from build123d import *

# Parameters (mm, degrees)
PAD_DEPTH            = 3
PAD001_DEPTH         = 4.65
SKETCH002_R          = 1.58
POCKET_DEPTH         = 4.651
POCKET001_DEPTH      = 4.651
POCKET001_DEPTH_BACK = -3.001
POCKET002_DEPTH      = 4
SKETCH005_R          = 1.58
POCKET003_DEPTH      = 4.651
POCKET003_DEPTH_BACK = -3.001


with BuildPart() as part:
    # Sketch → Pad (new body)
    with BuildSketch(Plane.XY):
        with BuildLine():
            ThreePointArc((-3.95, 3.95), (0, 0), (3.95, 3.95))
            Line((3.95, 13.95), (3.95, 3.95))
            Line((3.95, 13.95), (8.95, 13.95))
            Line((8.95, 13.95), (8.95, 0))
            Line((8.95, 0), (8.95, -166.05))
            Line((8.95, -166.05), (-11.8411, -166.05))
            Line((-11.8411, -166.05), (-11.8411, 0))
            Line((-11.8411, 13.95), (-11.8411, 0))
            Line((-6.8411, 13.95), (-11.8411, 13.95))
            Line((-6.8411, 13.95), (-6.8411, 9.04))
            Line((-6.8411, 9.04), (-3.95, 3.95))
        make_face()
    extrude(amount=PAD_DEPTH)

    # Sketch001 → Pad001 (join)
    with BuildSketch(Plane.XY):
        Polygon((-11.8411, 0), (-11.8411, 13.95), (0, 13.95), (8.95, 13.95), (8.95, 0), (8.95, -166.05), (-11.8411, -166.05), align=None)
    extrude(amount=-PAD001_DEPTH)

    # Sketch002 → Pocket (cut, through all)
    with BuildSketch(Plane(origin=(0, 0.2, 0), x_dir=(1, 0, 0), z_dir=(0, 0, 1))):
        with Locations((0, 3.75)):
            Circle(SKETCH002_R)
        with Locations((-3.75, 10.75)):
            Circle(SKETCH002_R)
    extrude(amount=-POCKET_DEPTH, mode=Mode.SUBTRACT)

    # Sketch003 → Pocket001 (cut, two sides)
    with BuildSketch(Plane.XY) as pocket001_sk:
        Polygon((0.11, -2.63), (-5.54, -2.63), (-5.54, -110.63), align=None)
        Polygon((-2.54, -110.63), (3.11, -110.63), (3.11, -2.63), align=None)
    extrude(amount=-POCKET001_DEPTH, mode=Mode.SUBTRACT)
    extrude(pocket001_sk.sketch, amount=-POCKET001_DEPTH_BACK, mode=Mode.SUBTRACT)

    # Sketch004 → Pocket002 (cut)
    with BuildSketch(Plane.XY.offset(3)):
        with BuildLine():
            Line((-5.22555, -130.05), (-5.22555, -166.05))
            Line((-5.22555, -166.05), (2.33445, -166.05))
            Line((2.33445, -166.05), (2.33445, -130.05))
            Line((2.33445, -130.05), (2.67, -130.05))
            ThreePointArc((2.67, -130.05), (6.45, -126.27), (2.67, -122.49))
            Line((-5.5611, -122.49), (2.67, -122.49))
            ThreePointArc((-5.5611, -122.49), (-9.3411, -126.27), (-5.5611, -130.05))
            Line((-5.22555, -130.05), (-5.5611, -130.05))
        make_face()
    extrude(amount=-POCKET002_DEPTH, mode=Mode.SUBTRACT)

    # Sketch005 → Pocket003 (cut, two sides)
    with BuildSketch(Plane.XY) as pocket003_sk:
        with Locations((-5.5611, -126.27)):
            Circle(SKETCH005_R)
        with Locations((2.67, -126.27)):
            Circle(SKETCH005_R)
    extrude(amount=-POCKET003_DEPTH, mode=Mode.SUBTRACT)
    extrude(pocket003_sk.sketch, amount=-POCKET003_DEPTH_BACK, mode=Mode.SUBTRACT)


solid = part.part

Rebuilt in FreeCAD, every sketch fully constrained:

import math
import FreeCAD as App
import Part
import Sketcher


def add_polygon(sketch, points):
    """Adds a closed chain of lines whose ends are joined by coincident constraints."""
    first, n = sketch.GeometryCount, len(points)
    for a, b in zip(points, points[1:] + points[:1]):
        sketch.addGeometry(Part.LineSegment(App.Vector(*a, 0), App.Vector(*b, 0)), False)
    for i in range(n):
        sketch.addConstraint(Sketcher.Constraint("Coincident", first + i, 2, first + (i + 1) % n, 1))

doc = App.newDocument("Part")
params = doc.addObject("Spreadsheet::Sheet", "Params")
for row, (alias, value) in enumerate([
    ("sketch1_width", "5 mm"),
    ("sketch1_height", "180 mm"),
    ("sketch1_height2", "10 mm"),
    ("sketch1_radius", "3.95 mm"),
    ("sketch1_height3", "4.91 mm"),
    ("pad1_length", "3 mm"),
    ("sketch2_height", "180 mm"),
    ("pad2_length", "4.65 mm"),
    ("sketch3_diameter", "3.16 mm"),
    ("sketch4_height", "108 mm"),
    ("sketch4_width", "5.65 mm"),
    ("sketch5_height", "36 mm"),
    ("sketch5_radius", "3.78 mm"),
    ("sketch5_width", "7.56 mm"),
    ("pocket3_length", "4 mm"),
    ("sketch6_diameter", "3.16 mm"),
], start=1):
    params.set(f"A{row}", alias)
    params.set(f"B{row}", "=" + value)
    params.setAlias(f"B{row}", alias)

body = doc.addObject("PartDesign::Body", "Body")

# Sketch on XY plane
sketch1 = body.newObject("Sketcher::SketchObject", "Sketch")
sketch1.AttachmentSupport = (doc.getObject("XY_Plane"), [""])
sketch1.MapMode = "FlatFace"
sketch1.addGeometry(Part.ArcOfCircle(Part.Circle(App.Vector(0, 4, 0), App.Vector(0, 0, 1), 4), math.radians(180), math.radians(360)), False)
sketch1.addGeometry(Part.LineSegment(App.Vector(-4, 4, 0), App.Vector(-6.8, 9, 0)), False)
sketch1.addGeometry(Part.LineSegment(App.Vector(-6.8, 9, 0), App.Vector(-6.8, 13.9, 0)), False)
sketch1.addGeometry(Part.LineSegment(App.Vector(-6.8, 13.9, 0), App.Vector(-11.8, 13.9, 0)), False)
sketch1.addGeometry(Part.LineSegment(App.Vector(-11.8, 13.9, 0), App.Vector(-11.8, -166.1, 0)), False)
sketch1.addGeometry(Part.LineSegment(App.Vector(-11.8, -166.1, 0), App.Vector(8.9, -166.1, 0)), False)
sketch1.addGeometry(Part.LineSegment(App.Vector(8.9, -166.1, 0), App.Vector(8.9, 13.9, 0)), False)
sketch1.addGeometry(Part.LineSegment(App.Vector(8.9, 13.9, 0), App.Vector(4, 13.9, 0)), False)
sketch1.addGeometry(Part.LineSegment(App.Vector(4, 13.9, 0), App.Vector(4, 4, 0)), False)
sketch1.addConstraint(Sketcher.Constraint("Coincident", 0, 1, 1, 1))
sketch1.addConstraint(Sketcher.Constraint("Coincident", 1, 2, 2, 1))
sketch1.addConstraint(Sketcher.Constraint("Coincident", 2, 2, 3, 1))
sketch1.addConstraint(Sketcher.Constraint("Coincident", 3, 2, 4, 1))
sketch1.addConstraint(Sketcher.Constraint("Coincident", 4, 2, 5, 1))
sketch1.addConstraint(Sketcher.Constraint("Coincident", 5, 2, 6, 1))
sketch1.addConstraint(Sketcher.Constraint("Coincident", 6, 2, 7, 1))
sketch1.addConstraint(Sketcher.Constraint("Coincident", 7, 2, 8, 1))
sketch1.addConstraint(Sketcher.Constraint("Tangent", 8, 2, 0, 2))
sketch1.addConstraint(Sketcher.Constraint("Vertical", 2))
sketch1.addConstraint(Sketcher.Constraint("Horizontal", 3))
sketch1.addConstraint(Sketcher.Constraint("Vertical", 4))
sketch1.addConstraint(Sketcher.Constraint("Horizontal", 5))
sketch1.addConstraint(Sketcher.Constraint("Vertical", 6))
sketch1.addConstraint(Sketcher.Constraint("Horizontal", 7))
sketch1.addConstraint(Sketcher.Constraint("Vertical", 8))
sketch1.addConstraint(Sketcher.Constraint("Symmetric", 0, 1, 8, 2, -2))
sketch1.addConstraint(Sketcher.Constraint("Horizontal", 3, 2, 6, 2))
sketch1.addConstraint(Sketcher.Constraint("Equal", 3, 7))
sketch1.addConstraint(Sketcher.Constraint("DistanceX", 3, 2, 3, 1, 5.0))
sketch1.addConstraint(Sketcher.Constraint("DistanceY", 4, 2, 4, 1, 180.0))
sketch1.addConstraint(Sketcher.Constraint("DistanceY", 8, 2, 8, 1, 10.0))
sketch1.addConstraint(Sketcher.Constraint("Radius", 0, 3.95))
sketch1.addConstraint(Sketcher.Constraint("DistanceY", 2, 1, 2, 2, 4.91))
sketch1.addConstraint(Sketcher.Constraint("DistanceY", -1, 1, 0, 3, 3.95))
sketch1.addConstraint(Sketcher.Constraint("DistanceX", 5, 1, 5, 2, 20.7911))
sketch1.setExpression("Constraints[19]", "Params.sketch1_width")
sketch1.setExpression("Constraints[20]", "Params.sketch1_height")
sketch1.setExpression("Constraints[21]", "Params.sketch1_height2")
sketch1.setExpression("Constraints[22]", "Params.sketch1_radius")
sketch1.setExpression("Constraints[23]", "Params.sketch1_height3")
pad1 = body.newObject("PartDesign::Pad", "Pad")
pad1.Profile = sketch1
pad1.setExpression("Length", "Params.pad1_length")

# Sketch on XY plane
sketch2 = body.newObject("Sketcher::SketchObject", "Sketch001")
sketch2.AttachmentSupport = (doc.getObject("XY_Plane"), [""])
sketch2.MapMode = "FlatFace"
add_polygon(sketch2, [(-12, 14), (-12, -166), (9, -166), (9, 14)])  # lines 0-3
sketch2.addConstraint(Sketcher.Constraint("Vertical", 0))
sketch2.addConstraint(Sketcher.Constraint("Horizontal", 1))
sketch2.addConstraint(Sketcher.Constraint("Vertical", 2))
sketch2.addConstraint(Sketcher.Constraint("Horizontal", 3))
sketch2.addConstraint(Sketcher.Constraint("DistanceY", 0, 2, 0, 1, 180.0))
sketch2.addConstraint(Sketcher.Constraint("DistanceY", 0, 2, -1, 1, 166.05))
sketch2.addConstraint(Sketcher.Constraint("DistanceX", -1, 1, 1, 2, 8.95))
sketch2.addConstraint(Sketcher.Constraint("DistanceX", 1, 1, 1, 2, 20.7911))
sketch2.setExpression("Constraints[8]", "Params.sketch2_height")
pad2 = body.newObject("PartDesign::Pad", "Pad001")
pad2.Profile = sketch2
pad2.setExpression("Length", "Params.pad2_length")
pad2.Reversed = True

# Sketch on XY plane
sketch3 = body.newObject("Sketcher::SketchObject", "Sketch002")
sketch3.AttachmentSupport = (doc.getObject("XY_Plane"), [""])
sketch3.MapMode = "FlatFace"
sketch3.addGeometry(Part.Circle(App.Vector(0, 4, 0), App.Vector(0, 0, 1), 1.6), False)
sketch3.addGeometry(Part.Circle(App.Vector(-3.8, 10.9, 0), App.Vector(0, 0, 1), 1.6), False)
sketch3.addConstraint(Sketcher.Constraint("Equal", 0, 1))
sketch3.addConstraint(Sketcher.Constraint("PointOnObject", 0, 3, -2))
sketch3.addConstraint(Sketcher.Constraint("Diameter", 0, 3.16))
sketch3.addConstraint(Sketcher.Constraint("DistanceY", 0, 3, 1, 3, 7.0))
sketch3.addConstraint(Sketcher.Constraint("DistanceY", -1, 1, 0, 3, 3.95))
sketch3.addConstraint(Sketcher.Constraint("DistanceX", 1, 3, -1, 1, 3.75))
sketch3.setExpression("Constraints[2]", "Params.sketch3_diameter")
pocket1 = body.newObject("PartDesign::Pocket", "Pocket")
pocket1.Profile = sketch3
pocket1.Type = "ThroughAll"

# Sketch on XY plane
sketch4 = body.newObject("Sketcher::SketchObject", "Sketch003")
sketch4.AttachmentSupport = (doc.getObject("XY_Plane"), [""])
sketch4.MapMode = "FlatFace"
add_polygon(sketch4, [(0, -3), (-6, -3), (-6, -111)])  # lines 0-2
add_polygon(sketch4, [(-3, -111), (3, -111), (3, -3)])  # lines 3-5
sketch4.addConstraint(Sketcher.Constraint("Horizontal", 0))
sketch4.addConstraint(Sketcher.Constraint("Vertical", 1))
sketch4.addConstraint(Sketcher.Constraint("Horizontal", 3))
sketch4.addConstraint(Sketcher.Constraint("Vertical", 4))
sketch4.addConstraint(Sketcher.Constraint("Parallel", 2, 5))
sketch4.addConstraint(Sketcher.Constraint("Horizontal", 1, 2, 3, 2))
sketch4.addConstraint(Sketcher.Constraint("Horizontal", 2, 2, 4, 2))
sketch4.addConstraint(Sketcher.Constraint("DistanceY", 1, 2, 1, 1, 108.0))
sketch4.addConstraint(Sketcher.Constraint("DistanceX", 2, 2, 3, 2, 3.0))
sketch4.addConstraint(Sketcher.Constraint("DistanceX", 0, 2, 0, 1, 5.65))
sketch4.addConstraint(Sketcher.Constraint("DistanceX", 0, 2, -1, 1, 5.54))
sketch4.addConstraint(Sketcher.Constraint("DistanceY", 0, 2, -1, 1, 2.63))
sketch4.setExpression("Constraints[13]", "Params.sketch4_height")
sketch4.setExpression("Constraints[15]", "Params.sketch4_width")
pocket2 = body.newObject("PartDesign::Pocket", "Pocket001")
pocket2.Profile = sketch4
pocket2.Type = "ThroughAll"
pocket2.Midplane = True

# Sketch on XY plane
sketch5 = body.newObject("Sketcher::SketchObject", "Sketch004")
sketch5.AttachmentSupport = (doc.getObject("XY_Plane"), [""])
sketch5.MapMode = "FlatFace"
sketch5.AttachmentOffset = App.Placement(App.Vector(0, 0, 3), App.Rotation())
sketch5.addGeometry(Part.LineSegment(App.Vector(-5.23, -130.05, 0), App.Vector(-5.23, -166.05, 0)), False)
sketch5.addGeometry(Part.LineSegment(App.Vector(-5.23, -166.05, 0), App.Vector(2.33, -166.05, 0)), False)
sketch5.addGeometry(Part.LineSegment(App.Vector(2.33, -166.05, 0), App.Vector(2.33, -130.05, 0)), False)
sketch5.addGeometry(Part.LineSegment(App.Vector(2.33, -130.05, 0), App.Vector(2.67, -130.05, 0)), False)
sketch5.addGeometry(Part.ArcOfCircle(Part.Circle(App.Vector(2.67, -126.27, 0), App.Vector(0, 0, 1), 3.78), math.radians(-90), math.radians(90)), False)
sketch5.addGeometry(Part.LineSegment(App.Vector(2.67, -122.49, 0), App.Vector(-5.56, -122.49, 0)), False)
sketch5.addGeometry(Part.ArcOfCircle(Part.Circle(App.Vector(-5.56, -126.27, 0), App.Vector(0, 0, 1), 3.78), math.radians(90), math.radians(270)), False)
sketch5.addGeometry(Part.LineSegment(App.Vector(-5.56, -130.05, 0), App.Vector(-5.23, -130.05, 0)), False)
sketch5.addConstraint(Sketcher.Constraint("Coincident", 0, 2, 1, 1))
sketch5.addConstraint(Sketcher.Constraint("Coincident", 1, 2, 2, 1))
sketch5.addConstraint(Sketcher.Constraint("Coincident", 2, 2, 3, 1))
sketch5.addConstraint(Sketcher.Constraint("Tangent", 3, 2, 4, 1))
sketch5.addConstraint(Sketcher.Constraint("Tangent", 4, 2, 5, 1))
sketch5.addConstraint(Sketcher.Constraint("Tangent", 5, 2, 6, 1))
sketch5.addConstraint(Sketcher.Constraint("Tangent", 6, 2, 7, 1))
sketch5.addConstraint(Sketcher.Constraint("Coincident", 7, 2, 0, 1))
sketch5.addConstraint(Sketcher.Constraint("Vertical", 0))
sketch5.addConstraint(Sketcher.Constraint("Horizontal", 1))
sketch5.addConstraint(Sketcher.Constraint("Vertical", 2))
sketch5.addConstraint(Sketcher.Constraint("Horizontal", 3))
sketch5.addConstraint(Sketcher.Constraint("Horizontal", 5))
sketch5.addConstraint(Sketcher.Constraint("Horizontal", 7))
sketch5.addConstraint(Sketcher.Constraint("Equal", 4, 6))
sketch5.addConstraint(Sketcher.Constraint("Equal", 3, 7))
sketch5.addConstraint(Sketcher.Constraint("DistanceY", 0, 2, 0, 1, 36.0))
sketch5.addConstraint(Sketcher.Constraint("Radius", 4, 3.78))
sketch5.addConstraint(Sketcher.Constraint("DistanceX", 1, 1, 1, 2, 7.56))
sketch5.addConstraint(Sketcher.Constraint("DistanceX", -1, 1, 4, 3, 2.67))
sketch5.addConstraint(Sketcher.Constraint("DistanceY", 4, 3, -1, 1, 126.27))
sketch5.addConstraint(Sketcher.Constraint("DistanceX", 5, 2, 5, 1, 8.2311))
sketch5.setExpression("Constraints[16]", "Params.sketch5_height")
sketch5.setExpression("Constraints[17]", "Params.sketch5_radius")
sketch5.setExpression("Constraints[18]", "Params.sketch5_width")
pocket3 = body.newObject("PartDesign::Pocket", "Pocket002")
pocket3.Profile = sketch5
pocket3.setExpression("Length", "Params.pocket3_length")

# Sketch on XY plane
sketch6 = body.newObject("Sketcher::SketchObject", "Sketch005")
sketch6.AttachmentSupport = (doc.getObject("XY_Plane"), [""])
sketch6.MapMode = "FlatFace"
sketch6.addGeometry(Part.Circle(App.Vector(-5.6, -126.3, 0), App.Vector(0, 0, 1), 1.6), False)
sketch6.addGeometry(Part.Circle(App.Vector(2.7, -126.3, 0), App.Vector(0, 0, 1), 1.6), False)
sketch6.addConstraint(Sketcher.Constraint("Equal", 0, 1))
sketch6.addConstraint(Sketcher.Constraint("Horizontal", 0, 3, 1, 3))
sketch6.addConstraint(Sketcher.Constraint("Diameter", 0, 3.16))
sketch6.addConstraint(Sketcher.Constraint("DistanceY", 0, 3, -1, 1, 126.27))
sketch6.addConstraint(Sketcher.Constraint("DistanceX", -1, 1, 1, 3, 2.67))
sketch6.addConstraint(Sketcher.Constraint("DistanceX", 0, 3, -1, 1, 5.5611))
sketch6.setExpression("Constraints[2]", "Params.sketch6_diameter")
pocket4 = body.newObject("PartDesign::Pocket", "Pocket003")
pocket4.Profile = sketch6
pocket4.Type = "ThroughAll"
pocket4.Midplane = True

doc.recompute()
